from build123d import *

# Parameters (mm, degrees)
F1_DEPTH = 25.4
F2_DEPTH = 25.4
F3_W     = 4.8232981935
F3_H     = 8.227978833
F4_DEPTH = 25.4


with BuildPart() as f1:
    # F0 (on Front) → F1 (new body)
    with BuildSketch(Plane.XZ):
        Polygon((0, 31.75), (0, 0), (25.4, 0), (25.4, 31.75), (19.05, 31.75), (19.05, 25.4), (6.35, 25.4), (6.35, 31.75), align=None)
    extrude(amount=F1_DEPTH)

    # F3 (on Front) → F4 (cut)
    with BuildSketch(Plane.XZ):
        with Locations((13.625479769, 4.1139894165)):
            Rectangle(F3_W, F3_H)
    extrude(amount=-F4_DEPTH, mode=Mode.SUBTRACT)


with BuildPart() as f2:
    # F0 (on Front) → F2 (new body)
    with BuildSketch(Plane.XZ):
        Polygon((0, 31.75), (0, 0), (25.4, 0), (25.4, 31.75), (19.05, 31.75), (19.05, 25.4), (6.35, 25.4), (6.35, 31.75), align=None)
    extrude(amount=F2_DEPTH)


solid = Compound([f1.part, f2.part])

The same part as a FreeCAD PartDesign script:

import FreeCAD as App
import Part
import Sketcher

V = App.Vector
Q = App.Units.Quantity


def add_polygon(sketch, points):
    """Adds a closed chain of lines whose ends are joined by coincident constraints."""
    first, n = sketch.GeometryCount, len(points)
    for a, b in zip(points, points[1:] + points[:1]):
        sketch.addGeometry(Part.LineSegment(App.Vector(*a, 0), App.Vector(*b, 0)), False)
    for i in range(n):
        sketch.addConstraint(Sketcher.Constraint("Coincident", first + i, 2, first + (i + 1) % n, 1))

doc = App.newDocument("Part")
body = doc.addObject("PartDesign::Body", "Body")

# Sketch on XZ plane
sketch1 = doc.addObject("Sketcher::SketchObject", "Sketch")
body.addObject(sketch1)
sketch1.AttachmentSupport = (doc.XZ_Plane, [""])
sketch1.MapMode = "FlatFace"
add_polygon(sketch1, [(0, 32), (0, 0), (25, 0), (25, 32), (19, 32), (19, 25), (6, 25), (6, 32)])  # lines 0-7
sketch1.addConstraint(Sketcher.Constraint("Vertical", 0))
sketch1.addConstraint(Sketcher.Constraint("Horizontal", 1))
sketch1.addConstraint(Sketcher.Constraint("Vertical", 2))
sketch1.addConstraint(Sketcher.Constraint("Horizontal", 3))
sketch1.addConstraint(Sketcher.Constraint("Vertical", 4))
sketch1.addConstraint(Sketcher.Constraint("Horizontal", 5))
sketch1.addConstraint(Sketcher.Constraint("Vertical", 6))
sketch1.addConstraint(Sketcher.Constraint("Horizontal", 7))
sketch1.addConstraint(Sketcher.Constraint("Coincident", 0, 2, -1, 1))
sketch1.addConstraint(Sketcher.Constraint("Horizontal", 3, 2, 6, 2))
sketch1.addConstraint(Sketcher.Constraint("Equal", 3, 7))
sketch1.addConstraint(Sketcher.Constraint("Equal", 7, 4))
sketch1.addConstraint(Sketcher.Constraint("DistanceX", 1, 1, 1, 2, Q("1 in")))
sketch1.addConstraint(Sketcher.Constraint("DistanceX", 5, 2, 5, 1, Q("0.5 in")))
sketch1.addConstraint(Sketcher.Constraint("DistanceY", -1, 1, 4, 2, Q("1 in")))
pad1 = doc.addObject("PartDesign::Pad", "Pad")
body.addObject(pad1)
pad1.Profile = sketch1
pad1.Length = Q("1 in")

# Sketch on XZ plane
sketch2 = doc.addObject("Sketcher::SketchObject", "Sketch001")
body.addObject(sketch2)
sketch2.AttachmentSupport = (doc.XZ_Plane, [""])
sketch2.MapMode = "FlatFace"
add_polygon(sketch2, [(11.2, 8.2), (11.2, 0), (16, 0), (16, 8.2)])  # lines 0-3
sketch2.addConstraint(Sketcher.Constraint("Vertical", 0))
sketch2.addConstraint(Sketcher.Constraint("Horizontal", 1))
sketch2.addConstraint(Sketcher.Constraint("Vertical", 2))
sketch2.addConstraint(Sketcher.Constraint("Horizontal", 3))
sketch2.addConstraint(Sketcher.Constraint("PointOnObject", 0, 2, -1))
sketch2.addConstraint(Sketcher.Constraint("DistanceX", 1, 1, 1, 2, 4.823298))
sketch2.addConstraint(Sketcher.Constraint("DistanceY", 0, 2, 0, 1, 8.227979))
sketch2.addConstraint(Sketcher.Constraint("DistanceX", -1, 1, 0, 2, 11.213831))
pocket1 = doc.addObject("PartDesign::Pocket", "Pocket")
body.addObject(pocket1)
pocket1.Profile = sketch2
pocket1.Length = Q("1 in")
body2 = doc.addObject("PartDesign::Body", "Body001")

# Sketch on XZ plane
sketch3 = doc.addObject("Sketcher::SketchObject", "Sketch002")
body2.addObject(sketch3)
sketch3.AttachmentSupport = (doc.getObject("XZ_Plane001"), [""])
sketch3.MapMode = "FlatFace"
add_polygon(sketch3, [(0, 32), (0, 0), (25, 0), (25, 32), (19, 32), (19, 25), (6, 25), (6, 32)])  # lines 0-7
sketch3.addConstraint(Sketcher.Constraint("Vertical", 0))
sketch3.addConstraint(Sketcher.Constraint("Horizontal", 1))
sketch3.addConstraint(Sketcher.Constraint("Vertical", 2))
sketch3.addConstraint(Sketcher.Constraint("Horizontal", 3))
sketch3.addConstraint(Sketcher.Constraint("Vertical", 4))
sketch3.addConstraint(Sketcher.Constraint("Horizontal", 5))
sketch3.addConstraint(Sketcher.Constraint("Vertical", 6))
sketch3.addConstraint(Sketcher.Constraint("Horizontal", 7))
sketch3.addConstraint(Sketcher.Constraint("Coincident", 0, 2, -1, 1))
sketch3.addConstraint(Sketcher.Constraint("Horizontal", 3, 2, 6, 2))
sketch3.addConstraint(Sketcher.Constraint("Equal", 3, 7))
sketch3.addConstraint(Sketcher.Constraint("Equal", 7, 4))
sketch3.addConstraint(Sketcher.Constraint("DistanceX", 1, 1, 1, 2, Q("1 in")))
sketch3.addConstraint(Sketcher.Constraint("DistanceX", 5, 2, 5, 1, Q("0.5 in")))
sketch3.addConstraint(Sketcher.Constraint("DistanceY", -1, 1, 4, 2, Q("1 in")))
pad2 = doc.addObject("PartDesign::Pad", "Pad001")
body2.addObject(pad2)
pad2.Profile = sketch3
pad2.Length = Q("1 in")

doc.recompute()
